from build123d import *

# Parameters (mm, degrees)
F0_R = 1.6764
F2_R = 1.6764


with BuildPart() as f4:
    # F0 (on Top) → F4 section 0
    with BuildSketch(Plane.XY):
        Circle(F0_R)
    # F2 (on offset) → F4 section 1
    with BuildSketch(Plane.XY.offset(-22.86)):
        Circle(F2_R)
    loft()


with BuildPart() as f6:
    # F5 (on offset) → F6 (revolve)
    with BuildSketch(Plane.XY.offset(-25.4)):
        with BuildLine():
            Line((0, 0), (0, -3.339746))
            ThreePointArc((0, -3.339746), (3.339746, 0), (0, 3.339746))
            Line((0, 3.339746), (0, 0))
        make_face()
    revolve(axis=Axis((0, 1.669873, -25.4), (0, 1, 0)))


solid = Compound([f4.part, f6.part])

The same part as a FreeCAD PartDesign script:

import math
import FreeCAD as App
import Part
import Sketcher
from FreeCAD import Vector
Q = App.Units.Quantity

doc = App.newDocument("Part")
body = doc.addObject("PartDesign::Body", "Body")

# Sketch on XY plane
sketch1 = body.newObject("Sketcher::SketchObject", "Sketch")
sketch1.AttachmentSupport = (doc.getObject("XY_Plane"), [""])
sketch1.MapMode = "FlatFace"
sketch1.addGeometry(Part.Circle(Vector(0, 0, 0), Vector(0, 0, 1), 1.7), False)
sketch1.addConstraint([
    Sketcher.Constraint("Coincident", 0, 3, -1, 1),
    Sketcher.Constraint("Diameter", 0, Q("0.132 in")),
])

# Sketch on XY plane
sketch2 = body.newObject("Sketcher::SketchObject", "Sketch001")
sketch2.AttachmentSupport = (doc.getObject("XY_Plane"), [""])
sketch2.MapMode = "FlatFace"
sketch2.AttachmentOffset = App.Placement(Vector(0, 0, -0.9 * 25.4), App.Rotation())
sketch2.addGeometry(Part.Circle(Vector(0, 0, 0), Vector(0, 0, 1), 1.7), False)
sketch2.addConstraint([
    Sketcher.Constraint("Coincident", 0, 3, -1, 1),
    Sketcher.Constraint("Diameter", 0, Q("0.132 in")),
])

additiveloft = body.newObject("PartDesign::AdditiveLoft", "AdditiveLoft")
additiveloft.Profile = sketch1
additiveloft.Sections = [sketch2]
body2 = doc.addObject("PartDesign::Body", "Body001")

# Sketch on XY plane
sketch3 = body2.newObject("Sketcher::SketchObject", "Sketch002")
sketch3.AttachmentSupport = (doc.getObject("XY_Plane001"), [""])
sketch3.MapMode = "FlatFace"
sketch3.AttachmentOffset = App.Placement(Vector(0, 0, -1 * 25.4), App.Rotation())
sketch3.addGeometry([
    Part.ArcOfCircle(Part.Circle(Vector(0, 0, 0), Vector(0, 0, 1), 3.3), math.radians(-90), math.radians(90)),
    Part.LineSegment(Vector(0, 3.3, 0), Vector(0, -3.3, 0)),
], False)
sketch3.addConstraint([
    Sketcher.Constraint("Coincident", 0, 1, 1, 2),
    Sketcher.Constraint("Coincident", 1, 1, 0, 2),
    Sketcher.Constraint("Vertical", 1),
    Sketcher.Constraint("Coincident", 0, 3, -1, 1),
    Sketcher.Constraint("PointOnObject", 0, 1, -2),
    Sketcher.Constraint("Radius", 0, 3.339746),
])
revolution = body2.newObject("PartDesign::Revolution", "Revolution")
revolution.Profile = sketch3
revolution.ReferenceAxis = (sketch3, ["V_Axis"])
revolution.Angle = 360

doc.recompute()
